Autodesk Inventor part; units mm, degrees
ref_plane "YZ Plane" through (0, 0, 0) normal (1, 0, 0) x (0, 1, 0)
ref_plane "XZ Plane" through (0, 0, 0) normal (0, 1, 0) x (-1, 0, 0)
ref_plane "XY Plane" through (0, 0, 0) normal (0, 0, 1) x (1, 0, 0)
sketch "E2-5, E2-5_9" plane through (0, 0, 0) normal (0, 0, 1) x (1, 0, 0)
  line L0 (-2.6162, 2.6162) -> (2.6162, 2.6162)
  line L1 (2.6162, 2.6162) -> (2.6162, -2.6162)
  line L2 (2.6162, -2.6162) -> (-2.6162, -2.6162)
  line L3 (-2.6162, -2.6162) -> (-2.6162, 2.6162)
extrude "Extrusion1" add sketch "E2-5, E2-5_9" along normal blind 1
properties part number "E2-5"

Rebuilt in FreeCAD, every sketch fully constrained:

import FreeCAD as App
import Part
import Sketcher
from FreeCAD import Vector
Q = App.Units.Quantity


def add_polygon(sketch, points):
    """Adds a closed chain of lines whose ends are joined by coincident constraints."""
    first, n = sketch.GeometryCount, len(points)
    for a, b in zip(points, points[1:] + points[:1]):
        sketch.addGeometry(Part.LineSegment(App.Vector(*a, 0), App.Vector(*b, 0)), False)
    for i in range(n):
        sketch.addConstraint(Sketcher.Constraint("Coincident", first + i, 2, first + (i + 1) % n, 1))

doc = App.newDocument("Part")
body = doc.addObject("PartDesign::Body", "Body")

sketch1 = body.newObject("Sketcher::SketchObject", "Sketch")
sketch1.AttachmentSupport = (doc.getObject("XY_Plane"), [""])
sketch1.MapMode = "FlatFace"
add_polygon(sketch1, [(3, 3), (-3, 3), (-3, -3), (3, -3)])
sketch1.addConstraint(Sketcher.Constraint("Horizontal", 0))
sketch1.addConstraint(Sketcher.Constraint("Vertical", 1))
sketch1.addConstraint(Sketcher.Constraint("Horizontal", 2))
sketch1.addConstraint(Sketcher.Constraint("Vertical", 3))
sketch1.addConstraint(Sketcher.Constraint("Symmetric", 0, 2, 2, 2, -1, 1))
sketch1.addConstraint(Sketcher.Constraint("Equal", 2, 1))
sketch1.addConstraint(Sketcher.Constraint("DistanceX", 0, 2, 0, 1, Q("5.2324 mm")))
pad1 = body.newObject("PartDesign::Pad", "Pad")
pad1.Profile = sketch1
pad1.Length = 1

doc.recompute()
